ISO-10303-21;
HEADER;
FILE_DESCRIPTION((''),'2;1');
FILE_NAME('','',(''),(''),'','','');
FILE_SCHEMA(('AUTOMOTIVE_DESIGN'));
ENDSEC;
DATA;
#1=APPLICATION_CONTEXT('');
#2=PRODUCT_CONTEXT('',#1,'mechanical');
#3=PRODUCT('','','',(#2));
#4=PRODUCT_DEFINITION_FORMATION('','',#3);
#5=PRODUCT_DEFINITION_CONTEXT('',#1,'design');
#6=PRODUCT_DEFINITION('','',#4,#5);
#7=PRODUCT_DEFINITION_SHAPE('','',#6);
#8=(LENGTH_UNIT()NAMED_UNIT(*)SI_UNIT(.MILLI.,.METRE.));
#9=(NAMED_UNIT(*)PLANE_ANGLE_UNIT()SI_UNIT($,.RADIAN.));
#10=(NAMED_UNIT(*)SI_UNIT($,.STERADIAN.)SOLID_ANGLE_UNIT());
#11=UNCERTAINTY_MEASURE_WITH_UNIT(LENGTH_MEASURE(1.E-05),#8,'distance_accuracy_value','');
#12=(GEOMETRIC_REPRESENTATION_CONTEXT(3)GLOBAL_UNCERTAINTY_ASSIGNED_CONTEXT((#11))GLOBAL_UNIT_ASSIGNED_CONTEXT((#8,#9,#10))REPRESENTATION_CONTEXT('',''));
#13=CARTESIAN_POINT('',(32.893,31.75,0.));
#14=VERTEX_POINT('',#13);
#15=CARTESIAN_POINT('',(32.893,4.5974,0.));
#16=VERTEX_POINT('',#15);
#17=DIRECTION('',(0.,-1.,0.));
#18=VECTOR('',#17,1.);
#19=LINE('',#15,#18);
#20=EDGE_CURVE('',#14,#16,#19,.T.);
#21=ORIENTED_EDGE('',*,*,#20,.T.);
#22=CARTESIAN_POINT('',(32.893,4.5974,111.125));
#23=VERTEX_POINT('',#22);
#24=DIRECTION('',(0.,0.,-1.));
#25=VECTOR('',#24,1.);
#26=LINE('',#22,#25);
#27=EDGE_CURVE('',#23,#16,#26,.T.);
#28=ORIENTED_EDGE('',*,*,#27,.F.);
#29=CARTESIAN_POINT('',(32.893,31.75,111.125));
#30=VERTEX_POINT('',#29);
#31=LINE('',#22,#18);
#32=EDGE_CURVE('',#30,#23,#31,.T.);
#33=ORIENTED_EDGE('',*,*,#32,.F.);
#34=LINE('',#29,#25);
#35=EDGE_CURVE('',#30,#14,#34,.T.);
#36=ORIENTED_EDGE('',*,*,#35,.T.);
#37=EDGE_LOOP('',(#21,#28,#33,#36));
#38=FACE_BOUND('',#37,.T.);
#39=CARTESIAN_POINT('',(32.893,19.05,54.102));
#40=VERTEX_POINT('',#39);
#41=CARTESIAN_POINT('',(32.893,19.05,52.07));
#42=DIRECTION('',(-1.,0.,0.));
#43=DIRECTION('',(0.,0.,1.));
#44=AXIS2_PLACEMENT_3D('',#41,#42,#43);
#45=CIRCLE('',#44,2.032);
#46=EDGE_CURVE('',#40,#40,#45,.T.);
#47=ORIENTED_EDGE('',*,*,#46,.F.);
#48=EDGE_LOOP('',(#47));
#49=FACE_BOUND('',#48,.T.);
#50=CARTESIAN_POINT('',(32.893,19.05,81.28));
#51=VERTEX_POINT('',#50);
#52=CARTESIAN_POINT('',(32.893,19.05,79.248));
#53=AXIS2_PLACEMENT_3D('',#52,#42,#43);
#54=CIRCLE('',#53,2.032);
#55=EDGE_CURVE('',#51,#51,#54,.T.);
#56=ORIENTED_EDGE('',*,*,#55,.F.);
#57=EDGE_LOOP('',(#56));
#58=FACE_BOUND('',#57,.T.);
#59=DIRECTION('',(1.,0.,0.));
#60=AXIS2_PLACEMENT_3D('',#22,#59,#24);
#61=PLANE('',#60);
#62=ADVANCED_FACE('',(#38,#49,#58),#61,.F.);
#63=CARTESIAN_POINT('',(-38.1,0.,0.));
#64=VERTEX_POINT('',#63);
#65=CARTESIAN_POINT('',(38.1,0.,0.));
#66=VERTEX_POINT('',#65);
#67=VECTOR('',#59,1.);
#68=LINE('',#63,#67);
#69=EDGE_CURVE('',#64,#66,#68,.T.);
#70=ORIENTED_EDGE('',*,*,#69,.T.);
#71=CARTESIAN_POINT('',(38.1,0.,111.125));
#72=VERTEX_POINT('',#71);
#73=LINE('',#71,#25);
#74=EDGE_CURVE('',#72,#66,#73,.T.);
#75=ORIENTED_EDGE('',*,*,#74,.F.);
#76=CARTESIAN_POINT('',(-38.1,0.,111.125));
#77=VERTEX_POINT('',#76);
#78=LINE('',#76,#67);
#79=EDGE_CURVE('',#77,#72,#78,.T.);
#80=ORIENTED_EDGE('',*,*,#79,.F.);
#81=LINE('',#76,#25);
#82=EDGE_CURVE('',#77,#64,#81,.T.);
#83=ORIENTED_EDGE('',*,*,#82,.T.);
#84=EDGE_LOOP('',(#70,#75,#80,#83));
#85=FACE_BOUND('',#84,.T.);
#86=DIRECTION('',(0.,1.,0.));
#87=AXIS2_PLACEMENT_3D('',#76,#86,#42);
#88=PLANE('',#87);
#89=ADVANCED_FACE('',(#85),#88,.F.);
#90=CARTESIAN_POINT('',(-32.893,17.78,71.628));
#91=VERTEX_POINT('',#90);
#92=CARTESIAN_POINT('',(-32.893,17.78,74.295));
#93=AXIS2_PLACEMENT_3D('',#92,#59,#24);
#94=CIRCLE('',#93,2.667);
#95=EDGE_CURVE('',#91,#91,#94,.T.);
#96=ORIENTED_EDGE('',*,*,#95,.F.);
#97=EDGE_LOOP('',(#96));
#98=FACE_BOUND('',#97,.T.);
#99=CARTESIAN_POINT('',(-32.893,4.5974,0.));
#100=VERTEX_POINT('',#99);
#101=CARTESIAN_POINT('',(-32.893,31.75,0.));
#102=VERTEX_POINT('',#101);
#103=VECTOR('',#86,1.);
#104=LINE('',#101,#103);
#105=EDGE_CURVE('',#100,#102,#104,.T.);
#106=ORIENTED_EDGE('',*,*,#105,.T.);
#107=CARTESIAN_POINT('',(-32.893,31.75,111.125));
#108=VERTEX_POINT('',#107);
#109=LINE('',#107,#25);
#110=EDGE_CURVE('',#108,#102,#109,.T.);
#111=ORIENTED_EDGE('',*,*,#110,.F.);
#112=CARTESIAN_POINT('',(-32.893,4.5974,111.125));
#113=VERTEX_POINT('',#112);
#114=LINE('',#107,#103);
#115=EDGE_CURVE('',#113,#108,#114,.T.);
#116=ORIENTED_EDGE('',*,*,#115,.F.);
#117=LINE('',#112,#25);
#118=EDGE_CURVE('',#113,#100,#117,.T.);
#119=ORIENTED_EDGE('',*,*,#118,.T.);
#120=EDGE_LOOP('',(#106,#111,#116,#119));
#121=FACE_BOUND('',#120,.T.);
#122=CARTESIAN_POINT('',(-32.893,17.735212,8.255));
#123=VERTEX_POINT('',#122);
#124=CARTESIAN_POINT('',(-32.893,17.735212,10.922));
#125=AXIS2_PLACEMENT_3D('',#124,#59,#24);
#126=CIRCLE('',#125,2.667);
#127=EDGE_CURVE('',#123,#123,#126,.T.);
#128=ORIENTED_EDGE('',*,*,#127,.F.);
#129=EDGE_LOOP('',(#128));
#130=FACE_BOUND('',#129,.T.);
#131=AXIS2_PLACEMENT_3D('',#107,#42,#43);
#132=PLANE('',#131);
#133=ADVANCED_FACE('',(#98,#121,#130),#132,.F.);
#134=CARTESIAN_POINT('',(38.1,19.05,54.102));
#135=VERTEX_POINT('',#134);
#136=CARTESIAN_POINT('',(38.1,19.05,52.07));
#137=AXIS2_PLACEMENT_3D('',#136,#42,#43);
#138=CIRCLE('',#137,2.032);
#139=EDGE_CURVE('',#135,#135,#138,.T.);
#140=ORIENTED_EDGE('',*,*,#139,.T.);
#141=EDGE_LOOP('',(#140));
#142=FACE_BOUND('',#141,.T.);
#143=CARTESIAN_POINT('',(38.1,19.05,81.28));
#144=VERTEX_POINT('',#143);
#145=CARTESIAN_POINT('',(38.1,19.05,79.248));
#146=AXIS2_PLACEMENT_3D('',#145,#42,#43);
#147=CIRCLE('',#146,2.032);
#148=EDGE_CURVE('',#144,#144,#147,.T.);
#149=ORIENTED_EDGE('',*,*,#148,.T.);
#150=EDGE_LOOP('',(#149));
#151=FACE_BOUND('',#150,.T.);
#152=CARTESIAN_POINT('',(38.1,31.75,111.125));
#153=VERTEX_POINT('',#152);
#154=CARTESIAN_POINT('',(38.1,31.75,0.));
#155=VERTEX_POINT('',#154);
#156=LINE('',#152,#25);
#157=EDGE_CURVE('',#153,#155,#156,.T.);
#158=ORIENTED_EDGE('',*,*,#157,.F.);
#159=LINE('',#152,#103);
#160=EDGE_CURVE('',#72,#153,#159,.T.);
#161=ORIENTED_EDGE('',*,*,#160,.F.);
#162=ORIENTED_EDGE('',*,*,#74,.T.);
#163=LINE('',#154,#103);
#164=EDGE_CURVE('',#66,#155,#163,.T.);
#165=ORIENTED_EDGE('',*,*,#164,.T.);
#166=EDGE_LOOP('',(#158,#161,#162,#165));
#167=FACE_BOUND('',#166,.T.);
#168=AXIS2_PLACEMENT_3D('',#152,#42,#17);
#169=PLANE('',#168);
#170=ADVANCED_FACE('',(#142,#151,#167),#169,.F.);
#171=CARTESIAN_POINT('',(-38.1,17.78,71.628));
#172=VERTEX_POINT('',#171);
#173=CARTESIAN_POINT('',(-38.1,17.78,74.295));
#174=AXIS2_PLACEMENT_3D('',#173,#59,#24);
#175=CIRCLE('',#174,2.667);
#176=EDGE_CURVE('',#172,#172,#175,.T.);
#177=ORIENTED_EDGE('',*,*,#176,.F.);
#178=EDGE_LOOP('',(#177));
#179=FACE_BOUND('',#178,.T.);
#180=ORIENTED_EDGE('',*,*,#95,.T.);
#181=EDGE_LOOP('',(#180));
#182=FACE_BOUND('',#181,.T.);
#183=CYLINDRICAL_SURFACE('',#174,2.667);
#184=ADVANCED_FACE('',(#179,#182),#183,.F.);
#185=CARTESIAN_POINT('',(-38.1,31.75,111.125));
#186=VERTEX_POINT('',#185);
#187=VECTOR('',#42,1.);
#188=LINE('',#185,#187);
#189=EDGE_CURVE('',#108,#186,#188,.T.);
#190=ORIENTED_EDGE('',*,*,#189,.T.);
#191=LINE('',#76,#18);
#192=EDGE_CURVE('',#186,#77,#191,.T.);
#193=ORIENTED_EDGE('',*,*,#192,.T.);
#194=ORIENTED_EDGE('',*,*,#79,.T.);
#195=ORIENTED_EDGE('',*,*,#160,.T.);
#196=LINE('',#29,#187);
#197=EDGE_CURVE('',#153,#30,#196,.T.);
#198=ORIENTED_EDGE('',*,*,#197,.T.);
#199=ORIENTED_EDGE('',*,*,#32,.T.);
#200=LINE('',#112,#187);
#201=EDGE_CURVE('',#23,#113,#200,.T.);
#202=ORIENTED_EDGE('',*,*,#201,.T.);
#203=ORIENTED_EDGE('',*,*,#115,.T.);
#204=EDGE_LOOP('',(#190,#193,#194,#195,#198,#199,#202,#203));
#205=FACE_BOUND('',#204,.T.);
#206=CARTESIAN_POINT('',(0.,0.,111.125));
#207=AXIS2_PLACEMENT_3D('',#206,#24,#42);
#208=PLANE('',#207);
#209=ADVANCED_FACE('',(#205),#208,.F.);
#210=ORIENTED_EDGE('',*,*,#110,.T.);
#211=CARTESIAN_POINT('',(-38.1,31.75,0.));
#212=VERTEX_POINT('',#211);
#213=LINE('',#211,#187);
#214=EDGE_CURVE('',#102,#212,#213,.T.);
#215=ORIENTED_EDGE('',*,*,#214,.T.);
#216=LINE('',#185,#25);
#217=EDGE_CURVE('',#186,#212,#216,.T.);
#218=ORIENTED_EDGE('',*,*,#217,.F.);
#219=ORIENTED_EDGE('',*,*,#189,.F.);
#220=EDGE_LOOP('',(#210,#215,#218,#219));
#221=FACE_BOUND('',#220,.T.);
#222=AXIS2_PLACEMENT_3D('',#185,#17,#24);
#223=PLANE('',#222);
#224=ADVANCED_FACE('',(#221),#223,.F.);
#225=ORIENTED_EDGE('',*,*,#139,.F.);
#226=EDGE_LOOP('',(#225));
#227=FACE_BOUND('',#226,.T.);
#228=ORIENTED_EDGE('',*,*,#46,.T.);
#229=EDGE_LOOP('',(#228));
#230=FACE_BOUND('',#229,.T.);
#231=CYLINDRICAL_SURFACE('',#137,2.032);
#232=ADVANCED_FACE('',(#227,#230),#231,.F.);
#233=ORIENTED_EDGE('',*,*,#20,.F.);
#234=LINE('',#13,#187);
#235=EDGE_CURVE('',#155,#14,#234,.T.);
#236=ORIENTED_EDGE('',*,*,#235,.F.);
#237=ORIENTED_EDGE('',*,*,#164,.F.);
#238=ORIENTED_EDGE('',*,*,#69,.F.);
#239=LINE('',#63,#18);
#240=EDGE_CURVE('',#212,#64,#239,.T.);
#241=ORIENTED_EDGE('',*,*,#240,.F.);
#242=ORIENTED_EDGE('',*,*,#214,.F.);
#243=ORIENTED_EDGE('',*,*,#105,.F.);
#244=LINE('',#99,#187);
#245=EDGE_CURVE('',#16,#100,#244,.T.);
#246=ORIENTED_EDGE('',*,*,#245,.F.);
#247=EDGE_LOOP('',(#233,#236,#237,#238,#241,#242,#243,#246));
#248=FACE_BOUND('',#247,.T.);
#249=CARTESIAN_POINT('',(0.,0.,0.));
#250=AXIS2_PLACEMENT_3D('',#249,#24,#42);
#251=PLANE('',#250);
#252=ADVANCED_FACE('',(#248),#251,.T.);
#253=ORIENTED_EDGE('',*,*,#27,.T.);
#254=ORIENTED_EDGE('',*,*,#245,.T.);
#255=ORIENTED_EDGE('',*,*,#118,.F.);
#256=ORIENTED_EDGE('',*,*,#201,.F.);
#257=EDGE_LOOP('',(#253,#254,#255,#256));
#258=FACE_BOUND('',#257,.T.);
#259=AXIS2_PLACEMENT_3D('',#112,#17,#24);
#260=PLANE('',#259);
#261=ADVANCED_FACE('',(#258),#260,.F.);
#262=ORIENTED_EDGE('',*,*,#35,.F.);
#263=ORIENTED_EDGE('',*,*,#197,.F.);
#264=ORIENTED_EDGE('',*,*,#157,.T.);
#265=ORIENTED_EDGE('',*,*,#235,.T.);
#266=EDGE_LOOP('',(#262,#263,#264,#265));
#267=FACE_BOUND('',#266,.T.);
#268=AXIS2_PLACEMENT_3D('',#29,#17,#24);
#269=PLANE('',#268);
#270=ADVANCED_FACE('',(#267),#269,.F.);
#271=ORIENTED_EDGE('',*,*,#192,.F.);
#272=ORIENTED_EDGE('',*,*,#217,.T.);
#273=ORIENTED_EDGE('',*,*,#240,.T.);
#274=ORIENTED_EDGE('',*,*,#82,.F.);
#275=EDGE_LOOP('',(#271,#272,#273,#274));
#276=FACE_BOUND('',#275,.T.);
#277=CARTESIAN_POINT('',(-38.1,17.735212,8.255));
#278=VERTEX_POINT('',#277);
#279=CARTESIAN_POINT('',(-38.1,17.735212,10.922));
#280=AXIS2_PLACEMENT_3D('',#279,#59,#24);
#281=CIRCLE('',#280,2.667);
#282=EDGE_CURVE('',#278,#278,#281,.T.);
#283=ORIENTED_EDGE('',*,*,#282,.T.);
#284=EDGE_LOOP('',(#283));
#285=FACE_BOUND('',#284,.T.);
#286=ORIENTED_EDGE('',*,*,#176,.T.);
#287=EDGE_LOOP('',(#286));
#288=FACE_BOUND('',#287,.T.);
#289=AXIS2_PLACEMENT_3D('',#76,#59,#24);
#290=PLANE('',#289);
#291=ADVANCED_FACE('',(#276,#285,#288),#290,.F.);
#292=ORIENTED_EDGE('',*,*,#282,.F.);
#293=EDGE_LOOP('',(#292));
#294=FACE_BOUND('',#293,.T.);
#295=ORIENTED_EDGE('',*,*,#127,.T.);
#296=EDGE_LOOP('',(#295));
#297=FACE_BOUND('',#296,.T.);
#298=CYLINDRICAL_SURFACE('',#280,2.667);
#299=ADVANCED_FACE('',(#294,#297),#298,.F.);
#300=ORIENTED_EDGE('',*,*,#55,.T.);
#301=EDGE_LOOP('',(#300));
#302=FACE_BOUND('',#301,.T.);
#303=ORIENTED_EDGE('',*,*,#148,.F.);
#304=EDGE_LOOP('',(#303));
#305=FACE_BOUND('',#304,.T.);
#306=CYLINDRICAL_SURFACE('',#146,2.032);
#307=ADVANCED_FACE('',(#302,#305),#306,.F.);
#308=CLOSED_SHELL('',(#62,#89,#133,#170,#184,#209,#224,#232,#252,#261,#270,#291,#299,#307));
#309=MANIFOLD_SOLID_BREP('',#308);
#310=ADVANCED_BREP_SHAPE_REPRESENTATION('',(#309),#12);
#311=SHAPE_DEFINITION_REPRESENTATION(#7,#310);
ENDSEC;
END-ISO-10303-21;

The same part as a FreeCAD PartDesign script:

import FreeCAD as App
import Part
import Sketcher
Q = App.Units.Quantity


def add_polygon(sketch, points):
    """Adds a closed chain of lines whose ends are joined by coincident constraints."""
    first, n = sketch.GeometryCount, len(points)
    for a, b in zip(points, points[1:] + points[:1]):
        sketch.addGeometry(Part.LineSegment(App.Vector(*a, 0), App.Vector(*b, 0)), False)
    for i in range(n):
        sketch.addConstraint(Sketcher.Constraint("Coincident", first + i, 2, first + (i + 1) % n, 1))

doc = App.newDocument("Part")
body = doc.addObject("PartDesign::Body", "Body")

sketch1 = body.newObject("Sketcher::SketchObject", "Sketch")
sketch1.AttachmentSupport = (doc.getObject("XY_Plane"), [""])
sketch1.MapMode = "FlatFace"
add_polygon(sketch1, [(-38, 0), (38, 0), (38, 32), (33, 32), (33, 5), (-33, 5), (-33, 32), (-38, 32)])
sketch1.addConstraint([
    Sketcher.Constraint("Horizontal", 0),
    Sketcher.Constraint("Vertical", 1),
    Sketcher.Constraint("Horizontal", 2),
    Sketcher.Constraint("Vertical", 3),
    Sketcher.Constraint("Horizontal", 4),
    Sketcher.Constraint("Vertical", 5),
    Sketcher.Constraint("Horizontal", 6),
    Sketcher.Constraint("Vertical", 7),
    Sketcher.Constraint("Symmetric", 0, 2, 7, 2, -1, 1),
    Sketcher.Constraint("Symmetric", 2, 2, 5, 2, -2),
    Sketcher.Constraint("DistanceX", 0, 1, 0, 2, Q("3 in")),
    Sketcher.Constraint("DistanceX", 4, 2, 4, 1, Q("2.59 in")),
    Sketcher.Constraint("DistanceY", 1, 1, 1, 2, Q("1.25 in")),
    Sketcher.Constraint("DistanceY", 3, 2, 3, 1, Q("1.069 in")),
])
pad1 = body.newObject("PartDesign::Pad", "Pad")
pad1.Profile = sketch1
pad1.Length = Q("4.375 in")

sketch2 = body.newObject("Sketcher::SketchObject", "Sketch001")
sketch2.AttachmentSupport = (doc.getObject("YZ_Plane"), [""])
sketch2.MapMode = "FlatFace"
sketch2.AttachmentOffset = App.Placement(App.Vector(0, 0, -1.295 * 25.4), App.Rotation())
sketch2.addGeometry(Part.Circle(App.Vector(17.7, 10.9, 0), App.Vector(0, 0, 1), 2.7), False)
sketch2.addConstraint([
    Sketcher.Constraint("Diameter", 0, Q("0.21 in")),
    Sketcher.Constraint("DistanceY", -1, 1, 0, 3, Q("0.43 in")),
    Sketcher.Constraint("DistanceX", -1, 1, 0, 3, 17.735212),
])
pocket1 = body.newObject("PartDesign::Pocket", "Pocket")
pocket1.Profile = sketch2
pocket1.Type = "ThroughAll"

sketch3 = body.newObject("Sketcher::SketchObject", "Sketch002")
sketch3.AttachmentSupport = (doc.getObject("YZ_Plane"), [""])
sketch3.MapMode = "FlatFace"
sketch3.AttachmentOffset = App.Placement(App.Vector(0, 0, -1.295 * 25.4), App.Rotation())
sketch3.addGeometry(Part.Circle(App.Vector(17.8, 74.3, 0), App.Vector(0, 0, 1), 2.7), False)
sketch3.addConstraint([
    Sketcher.Constraint("Diameter", 0, Q("0.21 in")),
    Sketcher.Constraint("DistanceX", -1, 1, 0, 3, Q("0.7 in")),
    Sketcher.Constraint("DistanceY", -1, 1, 0, 3, Q("2.925 in")),
])
pocket2 = body.newObject("PartDesign::Pocket", "Pocket001")
pocket2.Profile = sketch3
pocket2.Type = "ThroughAll"

sketch4 = body.newObject("Sketcher::SketchObject", "Sketch003")
sketch4.AttachmentSupport = (doc.getObject("YZ_Plane"), [""])
sketch4.MapMode = "FlatFace"
sketch4.AttachmentOffset = App.Placement(App.Vector(0, 0, 1.295 * 25.4), App.Rotation())
sketch4.addGeometry(Part.Circle(App.Vector(19.1, 52.1, 0), App.Vector(0, 0, 1), 2), False)
sketch4.addConstraint([
    Sketcher.Constraint("Diameter", 0, Q("0.16 in")),
    Sketcher.Constraint("DistanceX", -1, 1, 0, 3, Q("0.75 in")),
    Sketcher.Constraint("DistanceY", -1, 1, 0, 3, Q("2.05 in")),
])
pocket3 = body.newObject("PartDesign::Pocket", "Pocket002")
pocket3.Profile = sketch4
pocket3.Type = "ThroughAll"
pocket3.Reversed = True

sketch5 = body.newObject("Sketcher::SketchObject", "Sketch004")
sketch5.AttachmentSupport = (doc.getObject("YZ_Plane"), [""])
sketch5.MapMode = "FlatFace"
sketch5.AttachmentOffset = App.Placement(App.Vector(0, 0, 1.295 * 25.4), App.Rotation())
sketch5.addGeometry(Part.Circle(App.Vector(19.1, 79.2, 0), App.Vector(0, 0, 1), 2), False)
sketch5.addConstraint([
    Sketcher.Constraint("Diameter", 0, Q("0.16 in")),
    Sketcher.Constraint("DistanceX", -1, 1, 0, 3, Q("0.75 in")),
    Sketcher.Constraint("DistanceY", -1, 1, 0, 3, Q("3.12 in")),
])
pocket4 = body.newObject("PartDesign::Pocket", "Pocket003")
pocket4.Profile = sketch5
pocket4.Type = "ThroughAll"
pocket4.Reversed = True

doc.recompute()
